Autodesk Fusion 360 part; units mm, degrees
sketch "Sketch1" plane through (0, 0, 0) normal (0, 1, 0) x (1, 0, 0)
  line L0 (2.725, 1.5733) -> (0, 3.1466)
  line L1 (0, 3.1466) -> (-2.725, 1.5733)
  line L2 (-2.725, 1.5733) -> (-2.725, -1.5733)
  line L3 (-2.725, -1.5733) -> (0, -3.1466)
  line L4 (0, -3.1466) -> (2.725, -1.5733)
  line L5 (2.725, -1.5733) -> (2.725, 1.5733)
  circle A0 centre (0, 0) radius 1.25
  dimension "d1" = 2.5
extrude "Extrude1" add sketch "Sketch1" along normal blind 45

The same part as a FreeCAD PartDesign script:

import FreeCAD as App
import Part
import Sketcher
Q = App.Units.Quantity

doc = App.newDocument("Part")
body = doc.addObject("PartDesign::Body", "Body")

sketch1 = body.newObject("Sketcher::SketchObject", "Sketch")
sketch1.AttachmentSupport = (doc.getObject("XZ_Plane"), [""])
sketch1.MapMode = "FlatFace"
sketch1.addGeometry([
    Part.LineSegment(App.Vector(2.725, 1.5733, 0), App.Vector(2.725, -1.5733, 0)),
    Part.LineSegment(App.Vector(2.725, -1.5733, 0), App.Vector(0, -3.1466, 0)),
    Part.LineSegment(App.Vector(0, -3.1466, 0), App.Vector(-2.725, -1.5733, 0)),
    Part.LineSegment(App.Vector(-2.725, -1.5733, 0), App.Vector(-2.725, 1.5733, 0)),
    Part.LineSegment(App.Vector(-2.725, 1.5733, 0), App.Vector(0, 3.1466, 0)),
    Part.LineSegment(App.Vector(0, 3.1466, 0), App.Vector(2.725, 1.5733, 0)),
    Part.Circle(App.Vector(0, 0, 0), App.Vector(0, 0, 1), 1.25),
], False)
sketch1.addConstraint([
    Sketcher.Constraint("Coincident", 0, 2, 1, 1),
    Sketcher.Constraint("Coincident", 1, 2, 2, 1),
    Sketcher.Constraint("Coincident", 2, 2, 3, 1),
    Sketcher.Constraint("Coincident", 3, 2, 4, 1),
    Sketcher.Constraint("Coincident", 4, 2, 5, 1),
    Sketcher.Constraint("Coincident", 5, 2, 0, 1),
    Sketcher.Constraint("Vertical", 0),
    Sketcher.Constraint("Vertical", 3),
    Sketcher.Constraint("Coincident", 6, 3, -1, 1),
    Sketcher.Constraint("Symmetric", 0, 2, 3, 2, -1, 1),
    Sketcher.Constraint("Symmetric", 1, 2, 4, 2, -1, 1),
    Sketcher.Constraint("PointOnObject", 1, 2, -2),
    Sketcher.Constraint("Parallel", 2, 5),
    Sketcher.Constraint("Horizontal", 0, 2, 2, 2),
    Sketcher.Constraint("Diameter", 6, Q("2.5 mm")),
    Sketcher.Constraint("Angle", 1, Q("-149.9997 deg")),
    Sketcher.Constraint("DistanceX", 2, 2, 0, 2, Q("5.45 mm")),
    Sketcher.Constraint("DistanceY", 1, 2, 3, 2, Q("4.72 mm")),
])
pad1 = body.newObject("PartDesign::Pad", "Pad")
pad1.Profile = sketch1
pad1.Length = 45
pad1.Reversed = True

doc.recompute()
